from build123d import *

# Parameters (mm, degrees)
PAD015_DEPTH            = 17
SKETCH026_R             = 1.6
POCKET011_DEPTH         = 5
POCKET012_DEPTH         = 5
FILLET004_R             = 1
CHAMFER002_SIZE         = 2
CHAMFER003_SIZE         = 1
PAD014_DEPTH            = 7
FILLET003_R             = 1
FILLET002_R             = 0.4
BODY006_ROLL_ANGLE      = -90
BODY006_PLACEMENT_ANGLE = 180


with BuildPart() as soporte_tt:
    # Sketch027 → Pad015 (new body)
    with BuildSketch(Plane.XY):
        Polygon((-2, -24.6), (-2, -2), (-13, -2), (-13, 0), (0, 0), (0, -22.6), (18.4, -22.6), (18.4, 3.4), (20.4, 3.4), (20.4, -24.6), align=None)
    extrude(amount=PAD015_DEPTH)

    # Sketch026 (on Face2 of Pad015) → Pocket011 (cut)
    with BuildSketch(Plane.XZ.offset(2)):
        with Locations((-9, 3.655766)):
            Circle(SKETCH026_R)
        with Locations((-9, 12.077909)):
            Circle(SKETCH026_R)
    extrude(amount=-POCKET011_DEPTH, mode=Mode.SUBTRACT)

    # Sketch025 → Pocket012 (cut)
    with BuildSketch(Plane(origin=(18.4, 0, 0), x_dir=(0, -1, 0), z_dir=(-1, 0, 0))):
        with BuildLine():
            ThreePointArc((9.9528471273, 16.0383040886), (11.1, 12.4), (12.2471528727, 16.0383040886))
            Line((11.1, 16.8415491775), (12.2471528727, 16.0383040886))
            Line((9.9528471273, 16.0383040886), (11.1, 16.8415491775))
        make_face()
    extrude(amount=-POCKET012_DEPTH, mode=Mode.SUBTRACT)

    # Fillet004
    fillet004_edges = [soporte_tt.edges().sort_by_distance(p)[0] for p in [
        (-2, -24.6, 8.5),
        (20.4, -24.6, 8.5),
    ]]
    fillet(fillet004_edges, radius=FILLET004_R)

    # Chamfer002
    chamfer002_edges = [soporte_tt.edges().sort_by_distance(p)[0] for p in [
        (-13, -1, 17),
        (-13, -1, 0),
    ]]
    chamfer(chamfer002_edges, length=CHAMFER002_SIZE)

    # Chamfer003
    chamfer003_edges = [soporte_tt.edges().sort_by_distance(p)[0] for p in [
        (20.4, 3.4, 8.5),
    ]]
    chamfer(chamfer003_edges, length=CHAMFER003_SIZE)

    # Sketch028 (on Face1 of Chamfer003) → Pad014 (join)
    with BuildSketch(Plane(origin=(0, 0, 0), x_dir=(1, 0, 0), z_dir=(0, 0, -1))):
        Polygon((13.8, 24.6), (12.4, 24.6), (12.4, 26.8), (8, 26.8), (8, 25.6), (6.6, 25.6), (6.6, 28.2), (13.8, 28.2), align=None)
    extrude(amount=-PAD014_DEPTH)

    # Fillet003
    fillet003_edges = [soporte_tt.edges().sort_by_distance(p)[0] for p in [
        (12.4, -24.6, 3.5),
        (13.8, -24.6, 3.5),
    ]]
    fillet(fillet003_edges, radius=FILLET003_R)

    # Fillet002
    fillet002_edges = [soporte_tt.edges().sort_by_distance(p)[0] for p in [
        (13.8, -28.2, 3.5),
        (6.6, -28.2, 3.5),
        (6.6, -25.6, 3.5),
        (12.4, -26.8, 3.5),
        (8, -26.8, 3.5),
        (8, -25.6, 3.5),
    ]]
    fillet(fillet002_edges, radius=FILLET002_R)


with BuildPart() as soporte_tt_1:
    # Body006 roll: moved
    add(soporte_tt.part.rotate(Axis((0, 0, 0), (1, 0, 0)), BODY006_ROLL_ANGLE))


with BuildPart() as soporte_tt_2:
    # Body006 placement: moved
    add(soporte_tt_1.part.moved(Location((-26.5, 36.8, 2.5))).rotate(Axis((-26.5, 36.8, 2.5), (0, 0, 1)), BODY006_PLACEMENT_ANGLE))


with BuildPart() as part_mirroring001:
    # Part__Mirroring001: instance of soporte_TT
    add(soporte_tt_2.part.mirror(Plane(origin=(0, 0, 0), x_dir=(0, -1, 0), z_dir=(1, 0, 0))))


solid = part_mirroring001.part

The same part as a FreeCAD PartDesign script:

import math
import FreeCAD as App
import Part
import Sketcher

V = App.Vector
Q = App.Units.Quantity


def edges_at(feature, points):
    """Names of the edges that pass closest to the given points."""
    edges = feature.Shape.Edges
    near = lambda p: min(range(len(edges)), key=lambda i: edges[i].distToShape(Part.Vertex(*p))[0])
    return sorted({f"Edge{near(p) + 1}" for p in points})

doc = App.newDocument("Part")
body = doc.addObject("PartDesign::Body", "Body")

# Sketch on XY plane
sketch1 = body.newObject("Sketcher::SketchObject", "Sketch")
sketch1.AttachmentSupport = (doc.getObject("XY_Plane"), [""])
sketch1.MapMode = "FlatFace"
sketch1.addGeometry(Part.LineSegment(V(-2, -2, 0), V(-2, -24.6, 0)), False)
sketch1.addGeometry(Part.LineSegment(V(-2, -24.6, 0), V(20.4, -24.6, 0)), False)
sketch1.addGeometry(Part.LineSegment(V(20.4, -24.6, 0), V(20.4, 3.4, 0)), False)
sketch1.addGeometry(Part.LineSegment(V(20.4, 3.4, 0), V(18.4, 3.4, 0)), False)
sketch1.addGeometry(Part.LineSegment(V(18.4, 3.4, 0), V(18.4, -22.6, 0)), False)
sketch1.addGeometry(Part.LineSegment(V(18.4, -22.6, 0), V(0, -22.6, 0)), False)
sketch1.addGeometry(Part.LineSegment(V(0, -22.6, 0), V(0, 0, 0)), False)
sketch1.addGeometry(Part.LineSegment(V(0, 0, 0), V(-13, 0, 0)), False)
sketch1.addGeometry(Part.LineSegment(V(-13, 0, 0), V(-13, -2, 0)), False)
sketch1.addGeometry(Part.LineSegment(V(-13, -2, 0), V(-2, -2, 0)), False)
sketch1.addConstraint(Sketcher.Constraint("Coincident", 0, 2, 1, 1))
sketch1.addConstraint(Sketcher.Constraint("Coincident", 1, 2, 2, 1))
sketch1.addConstraint(Sketcher.Constraint("Coincident", 2, 2, 3, 1))
sketch1.addConstraint(Sketcher.Constraint("Coincident", 3, 2, 4, 1))
sketch1.addConstraint(Sketcher.Constraint("Coincident", 4, 2, 5, 1))
sketch1.addConstraint(Sketcher.Constraint("Coincident", 5, 2, 6, 1))
sketch1.addConstraint(Sketcher.Constraint("Coincident", 6, 2, 7, 1))
sketch1.addConstraint(Sketcher.Constraint("Coincident", 7, 2, 8, 1))
sketch1.addConstraint(Sketcher.Constraint("Coincident", 8, 2, 9, 1))
sketch1.addConstraint(Sketcher.Constraint("Coincident", 9, 2, 0, 1))
sketch1.addConstraint(Sketcher.Constraint("Vertical", 0))
sketch1.addConstraint(Sketcher.Constraint("Horizontal", 1))
sketch1.addConstraint(Sketcher.Constraint("Vertical", 2))
sketch1.addConstraint(Sketcher.Constraint("Horizontal", 3))
sketch1.addConstraint(Sketcher.Constraint("Vertical", 4))
sketch1.addConstraint(Sketcher.Constraint("Horizontal", 5))
sketch1.addConstraint(Sketcher.Constraint("Vertical", 6))
sketch1.addConstraint(Sketcher.Constraint("Horizontal", 7))
sketch1.addConstraint(Sketcher.Constraint("Vertical", 8))
sketch1.addConstraint(Sketcher.Constraint("Horizontal", 9))
sketch1.addConstraint(Sketcher.Constraint("Coincident", 6, 2, -1, 1))
sketch1.addConstraint(Sketcher.Constraint("Equal", 0, 6))
sketch1.addConstraint(Sketcher.Constraint("Equal", 3, 8))
sketch1.addConstraint(Sketcher.Constraint("DistanceX", 3, 2, 3, 1, Q("2 mm")))
sketch1.addConstraint(Sketcher.Constraint("DistanceX", 7, 2, 7, 1, Q("13 mm")))
sketch1.addConstraint(Sketcher.Constraint("DistanceX", 9, 1, 9, 2, Q("11 mm")))
sketch1.addConstraint(Sketcher.Constraint("DistanceY", 2, 1, 2, 2, Q("28 mm")))
sketch1.addConstraint(Sketcher.Constraint("DistanceX", 1, 1, 1, 2, Q("22.4 mm")))
sketch1.addConstraint(Sketcher.Constraint("DistanceY", 0, 2, 0, 1, Q("22.6 mm")))
pad1 = body.newObject("PartDesign::Pad", "Pad")
pad1.Profile = sketch1
pad1.Length = 17

# Sketch on XZ plane
sketch2 = body.newObject("Sketcher::SketchObject", "Sketch001")
sketch2.AttachmentSupport = (doc.getObject("XZ_Plane"), [""])
sketch2.MapMode = "FlatFace"
sketch2.AttachmentOffset = App.Placement(V(0, 0, 2), App.Rotation())
sketch2.addGeometry(Part.Circle(V(-9, 3.7, 0), V(0, 0, 1), 1.6), False)
sketch2.addGeometry(Part.Circle(V(-9, 12.1, 0), V(0, 0, 1), 1.6), False)
sketch2.addConstraint(Sketcher.Constraint("Equal", 0, 1))
sketch2.addConstraint(Sketcher.Constraint("Vertical", 0, 3, 1, 3))
sketch2.addConstraint(Sketcher.Constraint("Diameter", 0, Q("3.2 mm")))
sketch2.addConstraint(Sketcher.Constraint("DistanceX", 0, 3, -1, 1, Q("9 mm")))
sketch2.addConstraint(Sketcher.Constraint("DistanceY", -1, 1, 1, 3, Q("12.077909 mm")))
sketch2.addConstraint(Sketcher.Constraint("DistanceY", -1, 1, 0, 3, Q("3.655766 mm")))
pocket1 = body.newObject("PartDesign::Pocket", "Pocket")
pocket1.Profile = sketch2
pocket1.Length = 5

# Sketch on YZ plane
sketch3 = body.newObject("Sketcher::SketchObject", "Sketch002")
sketch3.AttachmentSupport = (doc.getObject("YZ_Plane"), [""])
sketch3.MapMode = "FlatFace"
sketch3.AttachmentOffset = App.Placement(V(0, 0, 18.4), App.Rotation())
sketch3.addGeometry(Part.ArcOfCircle(Part.Circle(V(-11.1, 14.4, 0), V(0, 0, 1), 2), math.radians(125), math.radians(415)), False)
sketch3.addGeometry(Part.LineSegment(V(-12.2, 16, 0), V(-11.1, 16.8, 0)), False)
sketch3.addGeometry(Part.LineSegment(V(-11.1, 16.8, 0), V(-10, 16, 0)), False)
sketch3.addConstraint(Sketcher.Constraint("Tangent", 0, 1, 1, 1))
sketch3.addConstraint(Sketcher.Constraint("Coincident", 1, 2, 2, 1))
sketch3.addConstraint(Sketcher.Constraint("Tangent", 2, 2, 0, 2))
sketch3.addConstraint(Sketcher.Constraint("Horizontal", 0, 1, 2, 2))
sketch3.addConstraint(Sketcher.Constraint("Radius", 0, Q("2 mm")))
sketch3.addConstraint(Sketcher.Constraint("Angle", 1, Q("35 deg")))
sketch3.addConstraint(Sketcher.Constraint("DistanceX", 0, 3, -1, 1, Q("11.1 mm")))
sketch3.addConstraint(Sketcher.Constraint("DistanceY", -1, 1, 0, 3, Q("14.4 mm")))
pocket2 = body.newObject("PartDesign::Pocket", "Pocket001")
pocket2.Profile = sketch3
pocket2.Length = 5
pocket2.Reversed = True
doc.recompute()

fillet = body.newObject("PartDesign::Fillet", "Fillet")
fillet.Base = (pocket2, edges_at(pocket2, [(-2, -24.6, 8.5), (20.4, -24.6, 8.5)]))
fillet.Radius = 1
doc.recompute()

chamfer = body.newObject("PartDesign::Chamfer", "Chamfer")
chamfer.Base = (fillet, edges_at(fillet, [(-13, -1, 17), (-13, -1, 0)]))
chamfer.Size = 2
doc.recompute()

chamfer2 = body.newObject("PartDesign::Chamfer", "Chamfer001")
chamfer2.Base = (chamfer, edges_at(chamfer, [(20.4, 3.4, 8.5)]))
chamfer2.Size = 1

# Sketch on XY plane
sketch4 = body.newObject("Sketcher::SketchObject", "Sketch003")
sketch4.AttachmentSupport = (doc.getObject("XY_Plane"), [""])
sketch4.MapMode = "FlatFace"
sketch4.addGeometry(Part.LineSegment(V(12.4, -24.6, 0), V(13.8, -24.6, 0)), False)
sketch4.addGeometry(Part.LineSegment(V(13.8, -24.6, 0), V(13.8, -28.2, 0)), False)
sketch4.addGeometry(Part.LineSegment(V(13.8, -28.2, 0), V(6.6, -28.2, 0)), False)
sketch4.addGeometry(Part.LineSegment(V(6.6, -28.2, 0), V(6.6, -25.6, 0)), False)
sketch4.addGeometry(Part.LineSegment(V(6.6, -25.6, 0), V(8, -25.6, 0)), False)
sketch4.addGeometry(Part.LineSegment(V(8, -25.6, 0), V(8, -26.8, 0)), False)
sketch4.addGeometry(Part.LineSegment(V(8, -26.8, 0), V(12.4, -26.8, 0)), False)
sketch4.addGeometry(Part.LineSegment(V(12.4, -26.8, 0), V(12.4, -24.6, 0)), False)
sketch4.addConstraint(Sketcher.Constraint("Coincident", 0, 2, 1, 1))
sketch4.addConstraint(Sketcher.Constraint("Coincident", 1, 2, 2, 1))
sketch4.addConstraint(Sketcher.Constraint("Coincident", 2, 2, 3, 1))
sketch4.addConstraint(Sketcher.Constraint("Coincident", 3, 2, 4, 1))
sketch4.addConstraint(Sketcher.Constraint("Coincident", 4, 2, 5, 1))
sketch4.addConstraint(Sketcher.Constraint("Coincident", 5, 2, 6, 1))
sketch4.addConstraint(Sketcher.Constraint("Coincident", 6, 2, 7, 1))
sketch4.addConstraint(Sketcher.Constraint("Coincident", 7, 2, 0, 1))
sketch4.addConstraint(Sketcher.Constraint("Horizontal", 0))
sketch4.addConstraint(Sketcher.Constraint("Vertical", 1))
sketch4.addConstraint(Sketcher.Constraint("Horizontal", 2))
sketch4.addConstraint(Sketcher.Constraint("Vertical", 3))
sketch4.addConstraint(Sketcher.Constraint("Horizontal", 4))
sketch4.addConstraint(Sketcher.Constraint("Vertical", 5))
sketch4.addConstraint(Sketcher.Constraint("Horizontal", 6))
sketch4.addConstraint(Sketcher.Constraint("Vertical", 7))
sketch4.addConstraint(Sketcher.Constraint("Equal", 0, 4))
sketch4.addConstraint(Sketcher.Constraint("DistanceX", 0, 1, 0, 2, Q("1.4 mm")))
sketch4.addConstraint(Sketcher.Constraint("DistanceX", 2, 2, 2, 1, Q("7.2 mm")))
sketch4.addConstraint(Sketcher.Constraint("DistanceY", 1, 2, 1, 1, Q("3.6 mm")))
sketch4.addConstraint(Sketcher.Constraint("DistanceY", 3, 1, 3, 2, Q("2.6 mm")))
sketch4.addConstraint(Sketcher.Constraint("DistanceY", 5, 2, 5, 1, Q("1.2 mm")))
sketch4.addConstraint(Sketcher.Constraint("DistanceX", -1, 1, 4, 2, Q("8 mm")))
sketch4.addConstraint(Sketcher.Constraint("DistanceY", 0, 2, -1, 1, Q("24.6 mm")))
pad2 = body.newObject("PartDesign::Pad", "Pad001")
pad2.Profile = sketch4
pad2.Length = 7
doc.recompute()

fillet2 = body.newObject("PartDesign::Fillet", "Fillet001")
fillet2.Base = (pad2, edges_at(pad2, [(12.4, -24.6, 3.5), (13.8, -24.6, 3.5)]))
fillet2.Radius = 1
doc.recompute()

fillet3 = body.newObject("PartDesign::Fillet", "Fillet002")
fillet3.Base = (fillet2, edges_at(fillet2, [
    (13.8, -28.2, 3.5),
    (6.6, -28.2, 3.5),
    (6.6, -25.6, 3.5),
    (12.4, -26.8, 3.5),
    (8, -26.8, 3.5),
    (8, -25.6, 3.5),
]))
fillet3.Radius = 0.4
body2 = doc.addObject("PartDesign::Body", "Body001")
doc.recompute()

body.Placement = App.Placement(V(0, 0, 0), App.Rotation(V(1, 0, 0), 270))
boolean = body2.newObject("PartDesign::Boolean", "Boolean")
boolean.Type = "Fuse"
boolean.addObjects([body])
body3 = doc.addObject("PartDesign::Body", "Body002")
doc.recompute()

body2.Placement = App.Placement(V(-26.5, 36.8, 2.5), App.Rotation(V(0, 0, 1), 180))
boolean2 = body3.newObject("PartDesign::Boolean", "Boolean001")
boolean2.Type = "Fuse"
boolean2.addObjects([body2])
body4 = doc.addObject("PartDesign::Body", "Body003")
doc.recompute()

mirroring = doc.addObject("Part::Mirroring", "Mirroring")
mirroring.Source = body3
mirroring.Base = V(0, 0, 0)
mirroring.Normal = V(1, 0, 0)
body4.BaseFeature = mirroring
doc.recompute()
body3.Visibility = False
mirroring.Visibility = False

doc.recompute()
